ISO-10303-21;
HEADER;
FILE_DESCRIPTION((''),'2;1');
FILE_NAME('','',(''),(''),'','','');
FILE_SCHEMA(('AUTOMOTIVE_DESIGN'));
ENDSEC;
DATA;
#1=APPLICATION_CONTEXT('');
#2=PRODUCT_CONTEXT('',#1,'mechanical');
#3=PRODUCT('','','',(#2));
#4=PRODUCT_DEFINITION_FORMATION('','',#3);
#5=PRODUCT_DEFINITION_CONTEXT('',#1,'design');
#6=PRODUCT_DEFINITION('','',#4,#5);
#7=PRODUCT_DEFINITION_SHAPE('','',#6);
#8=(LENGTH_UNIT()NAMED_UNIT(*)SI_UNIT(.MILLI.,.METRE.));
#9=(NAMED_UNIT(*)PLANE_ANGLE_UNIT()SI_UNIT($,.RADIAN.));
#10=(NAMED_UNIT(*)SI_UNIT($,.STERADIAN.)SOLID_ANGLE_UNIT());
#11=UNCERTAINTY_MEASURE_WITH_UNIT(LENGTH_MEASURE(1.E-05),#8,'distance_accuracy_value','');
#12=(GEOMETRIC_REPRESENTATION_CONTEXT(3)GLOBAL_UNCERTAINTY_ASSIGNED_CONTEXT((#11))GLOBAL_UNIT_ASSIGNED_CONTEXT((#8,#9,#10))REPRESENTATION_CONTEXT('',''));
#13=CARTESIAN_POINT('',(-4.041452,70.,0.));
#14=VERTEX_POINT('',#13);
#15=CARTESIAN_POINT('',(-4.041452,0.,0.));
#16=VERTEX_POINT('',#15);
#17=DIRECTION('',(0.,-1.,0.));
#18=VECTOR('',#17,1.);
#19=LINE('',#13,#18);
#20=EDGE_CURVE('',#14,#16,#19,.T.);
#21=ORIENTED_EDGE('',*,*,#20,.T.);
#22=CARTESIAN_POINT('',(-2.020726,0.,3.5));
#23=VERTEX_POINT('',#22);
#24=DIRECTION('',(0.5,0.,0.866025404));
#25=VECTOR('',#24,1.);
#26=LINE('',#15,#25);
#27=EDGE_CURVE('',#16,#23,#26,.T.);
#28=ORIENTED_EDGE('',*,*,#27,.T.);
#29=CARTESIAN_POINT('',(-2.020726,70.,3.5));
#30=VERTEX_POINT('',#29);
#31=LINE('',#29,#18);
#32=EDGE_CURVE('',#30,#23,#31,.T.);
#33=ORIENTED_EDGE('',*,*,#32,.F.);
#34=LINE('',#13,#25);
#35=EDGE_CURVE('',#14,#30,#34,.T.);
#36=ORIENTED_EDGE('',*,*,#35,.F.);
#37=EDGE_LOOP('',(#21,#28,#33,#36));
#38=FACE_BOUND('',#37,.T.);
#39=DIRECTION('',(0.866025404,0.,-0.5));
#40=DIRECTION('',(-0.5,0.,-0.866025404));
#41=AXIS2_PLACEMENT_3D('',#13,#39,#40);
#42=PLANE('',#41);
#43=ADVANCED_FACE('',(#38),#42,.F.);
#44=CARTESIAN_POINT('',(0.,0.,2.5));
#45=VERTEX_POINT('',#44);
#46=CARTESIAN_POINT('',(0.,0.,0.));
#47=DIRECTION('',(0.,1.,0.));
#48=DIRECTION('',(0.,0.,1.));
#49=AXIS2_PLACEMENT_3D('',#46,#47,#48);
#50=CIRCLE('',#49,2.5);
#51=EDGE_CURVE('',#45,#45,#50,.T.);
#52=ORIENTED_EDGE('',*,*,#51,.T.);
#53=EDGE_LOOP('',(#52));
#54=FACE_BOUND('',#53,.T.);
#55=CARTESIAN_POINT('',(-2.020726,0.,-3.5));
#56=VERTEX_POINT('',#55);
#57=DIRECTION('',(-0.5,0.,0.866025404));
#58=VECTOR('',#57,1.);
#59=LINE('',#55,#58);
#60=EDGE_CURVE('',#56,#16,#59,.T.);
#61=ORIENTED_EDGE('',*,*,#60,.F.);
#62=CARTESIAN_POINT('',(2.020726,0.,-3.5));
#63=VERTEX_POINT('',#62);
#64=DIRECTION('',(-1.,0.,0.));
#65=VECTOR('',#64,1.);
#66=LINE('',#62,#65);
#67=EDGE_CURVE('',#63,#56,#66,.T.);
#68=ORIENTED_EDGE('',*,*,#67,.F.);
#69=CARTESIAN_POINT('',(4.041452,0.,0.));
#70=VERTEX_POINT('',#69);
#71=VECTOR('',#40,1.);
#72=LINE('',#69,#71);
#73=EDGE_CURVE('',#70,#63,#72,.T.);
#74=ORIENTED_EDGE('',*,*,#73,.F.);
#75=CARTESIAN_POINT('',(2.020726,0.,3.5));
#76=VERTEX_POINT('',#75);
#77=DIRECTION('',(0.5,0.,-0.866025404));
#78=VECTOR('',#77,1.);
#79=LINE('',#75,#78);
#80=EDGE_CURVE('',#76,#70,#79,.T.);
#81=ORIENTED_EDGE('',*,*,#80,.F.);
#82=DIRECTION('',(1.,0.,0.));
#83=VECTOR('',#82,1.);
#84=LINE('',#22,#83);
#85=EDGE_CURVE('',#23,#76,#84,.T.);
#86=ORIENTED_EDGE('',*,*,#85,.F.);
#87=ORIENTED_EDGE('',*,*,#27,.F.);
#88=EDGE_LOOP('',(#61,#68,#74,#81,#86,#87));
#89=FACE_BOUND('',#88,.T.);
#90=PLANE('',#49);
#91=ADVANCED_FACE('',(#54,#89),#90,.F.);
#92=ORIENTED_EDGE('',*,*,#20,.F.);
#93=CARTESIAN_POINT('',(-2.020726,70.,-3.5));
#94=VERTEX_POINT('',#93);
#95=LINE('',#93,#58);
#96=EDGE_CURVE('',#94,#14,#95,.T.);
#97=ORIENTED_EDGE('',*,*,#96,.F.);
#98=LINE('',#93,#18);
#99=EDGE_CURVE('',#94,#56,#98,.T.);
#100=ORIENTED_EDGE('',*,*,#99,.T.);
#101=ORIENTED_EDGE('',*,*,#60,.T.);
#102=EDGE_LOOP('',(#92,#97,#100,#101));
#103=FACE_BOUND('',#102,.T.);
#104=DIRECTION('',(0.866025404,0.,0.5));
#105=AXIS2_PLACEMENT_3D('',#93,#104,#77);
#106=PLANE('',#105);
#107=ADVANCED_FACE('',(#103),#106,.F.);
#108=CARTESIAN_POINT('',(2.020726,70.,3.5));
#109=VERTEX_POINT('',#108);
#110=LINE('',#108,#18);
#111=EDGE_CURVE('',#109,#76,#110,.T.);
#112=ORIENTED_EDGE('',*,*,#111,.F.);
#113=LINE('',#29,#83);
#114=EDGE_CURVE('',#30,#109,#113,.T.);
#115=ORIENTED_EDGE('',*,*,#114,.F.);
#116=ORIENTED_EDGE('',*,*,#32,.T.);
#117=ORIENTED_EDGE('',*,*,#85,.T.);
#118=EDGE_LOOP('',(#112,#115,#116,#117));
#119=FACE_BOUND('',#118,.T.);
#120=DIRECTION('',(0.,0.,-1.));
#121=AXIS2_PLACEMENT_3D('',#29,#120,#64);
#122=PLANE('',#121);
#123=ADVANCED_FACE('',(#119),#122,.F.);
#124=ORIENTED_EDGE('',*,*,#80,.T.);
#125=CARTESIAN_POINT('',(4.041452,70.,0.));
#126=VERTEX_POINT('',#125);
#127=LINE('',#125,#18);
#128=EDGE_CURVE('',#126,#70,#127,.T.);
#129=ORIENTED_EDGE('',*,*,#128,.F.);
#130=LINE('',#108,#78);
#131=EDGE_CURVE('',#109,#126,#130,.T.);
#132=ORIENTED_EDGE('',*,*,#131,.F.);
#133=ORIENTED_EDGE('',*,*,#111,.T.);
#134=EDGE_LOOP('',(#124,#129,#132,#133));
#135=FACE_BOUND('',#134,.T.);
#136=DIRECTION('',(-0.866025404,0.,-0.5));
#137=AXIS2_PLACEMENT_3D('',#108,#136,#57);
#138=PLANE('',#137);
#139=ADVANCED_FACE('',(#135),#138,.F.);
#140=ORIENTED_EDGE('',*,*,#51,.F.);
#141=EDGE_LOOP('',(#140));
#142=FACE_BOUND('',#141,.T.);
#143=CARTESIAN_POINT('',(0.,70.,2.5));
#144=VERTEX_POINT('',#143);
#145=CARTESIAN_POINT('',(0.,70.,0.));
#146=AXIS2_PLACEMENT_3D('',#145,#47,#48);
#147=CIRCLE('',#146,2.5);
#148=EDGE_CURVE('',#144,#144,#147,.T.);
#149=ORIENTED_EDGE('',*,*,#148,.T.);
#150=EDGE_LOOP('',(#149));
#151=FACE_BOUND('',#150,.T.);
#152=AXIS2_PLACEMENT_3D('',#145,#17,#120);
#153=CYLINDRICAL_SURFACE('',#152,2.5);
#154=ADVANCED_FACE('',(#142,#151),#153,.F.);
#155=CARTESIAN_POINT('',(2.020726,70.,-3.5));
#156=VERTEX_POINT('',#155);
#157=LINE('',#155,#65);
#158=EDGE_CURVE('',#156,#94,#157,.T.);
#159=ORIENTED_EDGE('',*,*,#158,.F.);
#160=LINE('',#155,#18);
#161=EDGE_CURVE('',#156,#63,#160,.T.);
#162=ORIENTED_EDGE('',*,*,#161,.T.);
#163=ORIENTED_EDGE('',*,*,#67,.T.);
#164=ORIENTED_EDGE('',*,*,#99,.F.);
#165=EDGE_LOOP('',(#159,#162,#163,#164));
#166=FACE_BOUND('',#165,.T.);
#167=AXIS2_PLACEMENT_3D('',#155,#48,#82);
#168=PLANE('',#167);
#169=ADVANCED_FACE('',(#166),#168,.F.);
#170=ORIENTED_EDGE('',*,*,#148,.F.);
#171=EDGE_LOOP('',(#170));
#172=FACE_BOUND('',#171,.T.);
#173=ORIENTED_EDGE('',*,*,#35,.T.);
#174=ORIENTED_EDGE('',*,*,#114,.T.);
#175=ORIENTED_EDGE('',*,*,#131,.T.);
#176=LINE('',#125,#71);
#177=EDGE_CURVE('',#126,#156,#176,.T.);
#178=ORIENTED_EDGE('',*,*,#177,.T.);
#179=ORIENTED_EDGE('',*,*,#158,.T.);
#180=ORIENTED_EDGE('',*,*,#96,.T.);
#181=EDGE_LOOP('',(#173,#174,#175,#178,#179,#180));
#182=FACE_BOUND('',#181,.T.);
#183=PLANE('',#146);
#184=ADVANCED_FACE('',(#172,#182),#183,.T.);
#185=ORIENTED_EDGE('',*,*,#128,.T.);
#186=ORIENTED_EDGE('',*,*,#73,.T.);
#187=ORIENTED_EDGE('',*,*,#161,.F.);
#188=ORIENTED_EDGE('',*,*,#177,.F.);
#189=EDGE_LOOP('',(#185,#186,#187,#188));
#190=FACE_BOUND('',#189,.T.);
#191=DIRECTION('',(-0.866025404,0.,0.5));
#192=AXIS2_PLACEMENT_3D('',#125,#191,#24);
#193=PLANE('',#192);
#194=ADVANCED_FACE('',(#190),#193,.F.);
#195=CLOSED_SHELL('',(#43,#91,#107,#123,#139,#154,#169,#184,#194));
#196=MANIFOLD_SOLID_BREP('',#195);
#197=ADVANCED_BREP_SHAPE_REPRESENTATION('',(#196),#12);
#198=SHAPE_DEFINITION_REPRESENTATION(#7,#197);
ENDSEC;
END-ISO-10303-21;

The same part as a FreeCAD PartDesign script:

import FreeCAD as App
import Part
import Sketcher
from FreeCAD import Vector
Q = App.Units.Quantity


def add_polygon(sketch, points):
    """Adds a closed chain of lines whose ends are joined by coincident constraints."""
    first, n = sketch.GeometryCount, len(points)
    for a, b in zip(points, points[1:] + points[:1]):
        sketch.addGeometry(Part.LineSegment(App.Vector(*a, 0), App.Vector(*b, 0)), False)
    for i in range(n):
        sketch.addConstraint(Sketcher.Constraint("Coincident", first + i, 2, first + (i + 1) % n, 1))

doc = App.newDocument("Part")
params = doc.addObject("Spreadsheet::Sheet", "Params")
for row, (alias, value) in enumerate([
    ("sketch1_diameter", "5 mm"),
    ("pad1_length", "70 mm"),
], start=1):
    params.set(f"A{row}", alias)
    params.set(f"B{row}", "=" + value)
    params.setAlias(f"B{row}", alias)

body = doc.addObject("PartDesign::Body", "Body")

sketch1 = doc.addObject("Sketcher::SketchObject", "Sketch")
body.addObject(sketch1)
sketch1.AttachmentSupport = (doc.XZ_Plane, [""])
sketch1.MapMode = "FlatFace"
add_polygon(sketch1, [(2.020726, 3.5), (4.041452, 0), (2.020726, -3.5), (-2.020726, -3.5), (-4.041452, 0), (-2.020726, 3.5)])
sketch1.addGeometry(Part.Circle(Vector(0, 0, 0), Vector(0, 0, 1), 2.5), False)
sketch1.addConstraint([
    Sketcher.Constraint("Horizontal", 2),
    Sketcher.Constraint("Horizontal", 5),
    Sketcher.Constraint("Coincident", 6, 3, -1, 1),
    Sketcher.Constraint("Symmetric", 0, 2, 3, 2, -1, 1),
    Sketcher.Constraint("Symmetric", 1, 2, 4, 2, -1, 1),
    Sketcher.Constraint("PointOnObject", 0, 2, -1),
    Sketcher.Constraint("Parallel", 0, 3),
    Sketcher.Constraint("Vertical", 2, 2, 4, 2),
    Sketcher.Constraint("Diameter", 6, Q("5 mm")),
    Sketcher.Constraint("Angle", 0, Q("-60 deg")),
    Sketcher.Constraint("DistanceY", 2, 2, 4, 2, Q("7 mm")),
    Sketcher.Constraint("DistanceX", 2, 2, 2, 1, Q("4.041452 mm")),
])
sketch1.setExpression("Constraints[14]", "Params.sketch1_diameter")
pad1 = doc.addObject("PartDesign::Pad", "Pad")
body.addObject(pad1)
pad1.Profile = sketch1
pad1.setExpression("Length", "Params.pad1_length")
pad1.Reversed = True

doc.recompute()
